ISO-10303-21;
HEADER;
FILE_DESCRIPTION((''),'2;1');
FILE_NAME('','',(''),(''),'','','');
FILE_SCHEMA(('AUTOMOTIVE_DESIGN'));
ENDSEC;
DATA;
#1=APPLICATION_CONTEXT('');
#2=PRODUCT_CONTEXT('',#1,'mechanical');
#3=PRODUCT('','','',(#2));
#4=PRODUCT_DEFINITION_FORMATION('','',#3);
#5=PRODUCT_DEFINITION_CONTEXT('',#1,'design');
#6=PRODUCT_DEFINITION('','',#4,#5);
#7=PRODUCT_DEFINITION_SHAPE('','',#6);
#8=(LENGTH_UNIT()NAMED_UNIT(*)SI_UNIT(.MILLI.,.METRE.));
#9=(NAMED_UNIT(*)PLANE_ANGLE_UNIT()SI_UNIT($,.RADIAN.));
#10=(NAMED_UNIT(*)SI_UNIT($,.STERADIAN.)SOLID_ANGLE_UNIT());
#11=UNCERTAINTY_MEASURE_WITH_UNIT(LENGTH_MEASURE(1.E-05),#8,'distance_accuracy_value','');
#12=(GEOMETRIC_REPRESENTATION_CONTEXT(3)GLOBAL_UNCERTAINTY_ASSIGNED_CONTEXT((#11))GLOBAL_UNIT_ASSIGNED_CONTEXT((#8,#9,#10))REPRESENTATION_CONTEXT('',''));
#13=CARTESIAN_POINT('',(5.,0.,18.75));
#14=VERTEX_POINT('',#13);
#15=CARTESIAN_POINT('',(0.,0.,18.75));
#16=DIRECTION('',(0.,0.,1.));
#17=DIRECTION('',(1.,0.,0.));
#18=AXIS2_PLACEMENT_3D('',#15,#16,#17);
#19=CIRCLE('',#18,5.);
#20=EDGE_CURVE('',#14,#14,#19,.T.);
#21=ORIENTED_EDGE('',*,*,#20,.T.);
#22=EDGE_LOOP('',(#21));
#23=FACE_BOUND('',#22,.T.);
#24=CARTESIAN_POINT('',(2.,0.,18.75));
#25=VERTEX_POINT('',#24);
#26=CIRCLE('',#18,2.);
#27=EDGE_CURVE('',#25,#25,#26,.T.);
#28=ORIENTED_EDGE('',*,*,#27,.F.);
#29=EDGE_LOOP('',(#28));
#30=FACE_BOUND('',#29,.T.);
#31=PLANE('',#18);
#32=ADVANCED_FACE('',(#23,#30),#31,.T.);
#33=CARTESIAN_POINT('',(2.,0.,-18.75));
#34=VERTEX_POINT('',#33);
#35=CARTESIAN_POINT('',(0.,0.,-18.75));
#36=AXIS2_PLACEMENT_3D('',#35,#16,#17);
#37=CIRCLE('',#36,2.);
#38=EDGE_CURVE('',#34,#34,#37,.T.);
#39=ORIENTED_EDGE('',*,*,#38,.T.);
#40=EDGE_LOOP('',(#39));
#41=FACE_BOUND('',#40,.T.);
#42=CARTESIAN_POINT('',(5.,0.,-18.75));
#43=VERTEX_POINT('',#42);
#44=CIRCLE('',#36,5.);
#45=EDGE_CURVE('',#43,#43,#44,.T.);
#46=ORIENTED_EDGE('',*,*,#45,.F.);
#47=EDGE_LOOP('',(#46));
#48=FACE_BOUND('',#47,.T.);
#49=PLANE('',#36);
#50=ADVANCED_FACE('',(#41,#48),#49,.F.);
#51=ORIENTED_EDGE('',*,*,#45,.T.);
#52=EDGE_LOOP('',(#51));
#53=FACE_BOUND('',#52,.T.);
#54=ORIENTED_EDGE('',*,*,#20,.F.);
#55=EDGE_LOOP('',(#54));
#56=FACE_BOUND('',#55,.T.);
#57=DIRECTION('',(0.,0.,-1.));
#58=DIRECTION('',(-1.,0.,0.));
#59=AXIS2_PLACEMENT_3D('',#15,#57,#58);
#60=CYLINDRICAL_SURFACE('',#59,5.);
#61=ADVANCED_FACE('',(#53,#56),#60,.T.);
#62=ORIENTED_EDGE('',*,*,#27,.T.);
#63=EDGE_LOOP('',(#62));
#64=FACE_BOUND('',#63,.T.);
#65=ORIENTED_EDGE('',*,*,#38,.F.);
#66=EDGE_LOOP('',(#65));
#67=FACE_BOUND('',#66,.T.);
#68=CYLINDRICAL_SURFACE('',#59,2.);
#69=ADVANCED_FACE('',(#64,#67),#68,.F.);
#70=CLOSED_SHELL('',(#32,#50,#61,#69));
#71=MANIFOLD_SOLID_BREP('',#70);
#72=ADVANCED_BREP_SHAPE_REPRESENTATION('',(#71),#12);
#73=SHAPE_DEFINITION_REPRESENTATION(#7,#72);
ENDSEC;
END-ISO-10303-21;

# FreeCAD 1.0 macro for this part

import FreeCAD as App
import Part
import Sketcher
from FreeCAD import Vector
Q = App.Units.Quantity

doc = App.newDocument("Part")
body = doc.addObject("PartDesign::Body", "Body")

sketch1 = body.newObject("Sketcher::SketchObject", "Sketch")
sketch1.AttachmentSupport = (doc.getObject("XY_Plane"), [""])
sketch1.MapMode = "FlatFace"
sketch1.addGeometry([
    Part.Circle(Vector(0, 0, 0), Vector(0, 0, 1), 5),
    Part.Circle(Vector(0, 0, 0), Vector(0, 0, 1), 2),
], False)
sketch1.addConstraint([
    Sketcher.Constraint("Coincident", 0, 3, -1, 1),
    Sketcher.Constraint("Coincident", 1, 3, -1, 1),
    Sketcher.Constraint("Diameter", 0, Q("10 mm")),
    Sketcher.Constraint("Diameter", 1, Q("4 mm")),
])
pad1 = body.newObject("PartDesign::Pad", "Pad")
pad1.Profile = sketch1
pad1.Length = 37.5
pad1.Midplane = True

doc.recompute()
